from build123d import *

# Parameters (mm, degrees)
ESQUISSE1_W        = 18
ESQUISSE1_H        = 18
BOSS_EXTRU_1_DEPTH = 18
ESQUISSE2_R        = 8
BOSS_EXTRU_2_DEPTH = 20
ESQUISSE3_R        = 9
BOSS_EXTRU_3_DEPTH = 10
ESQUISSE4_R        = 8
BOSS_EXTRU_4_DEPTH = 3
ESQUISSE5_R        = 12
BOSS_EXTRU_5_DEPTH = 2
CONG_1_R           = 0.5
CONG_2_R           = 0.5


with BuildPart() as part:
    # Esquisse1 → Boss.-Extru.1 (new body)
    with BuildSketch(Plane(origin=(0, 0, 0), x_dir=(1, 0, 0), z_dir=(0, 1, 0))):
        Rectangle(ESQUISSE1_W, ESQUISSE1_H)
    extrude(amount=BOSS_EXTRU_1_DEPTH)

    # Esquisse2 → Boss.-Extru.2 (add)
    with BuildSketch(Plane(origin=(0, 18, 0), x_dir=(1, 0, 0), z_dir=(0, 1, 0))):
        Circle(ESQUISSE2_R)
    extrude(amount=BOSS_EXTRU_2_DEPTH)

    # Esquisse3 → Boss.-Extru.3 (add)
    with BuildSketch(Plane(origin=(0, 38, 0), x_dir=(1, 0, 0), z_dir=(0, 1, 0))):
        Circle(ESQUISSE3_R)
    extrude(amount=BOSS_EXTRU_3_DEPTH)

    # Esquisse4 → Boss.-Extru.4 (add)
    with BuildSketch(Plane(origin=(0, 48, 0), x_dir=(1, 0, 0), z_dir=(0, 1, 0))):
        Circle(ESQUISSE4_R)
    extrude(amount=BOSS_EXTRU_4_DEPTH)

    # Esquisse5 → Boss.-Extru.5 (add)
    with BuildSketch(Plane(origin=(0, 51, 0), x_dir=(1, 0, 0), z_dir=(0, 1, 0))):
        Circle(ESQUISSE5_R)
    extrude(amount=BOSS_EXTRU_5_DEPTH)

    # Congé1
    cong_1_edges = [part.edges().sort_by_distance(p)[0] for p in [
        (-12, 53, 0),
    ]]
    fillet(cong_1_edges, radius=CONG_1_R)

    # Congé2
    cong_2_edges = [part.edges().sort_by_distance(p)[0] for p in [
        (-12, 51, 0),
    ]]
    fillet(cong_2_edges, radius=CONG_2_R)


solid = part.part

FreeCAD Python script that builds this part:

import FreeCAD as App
import Part
import Sketcher
from FreeCAD import Vector
Q = App.Units.Quantity


def edges_at(feature, points):
    """Names of the edges that pass closest to the given points."""
    edges = feature.Shape.Edges
    near = lambda p: min(range(len(edges)), key=lambda i: edges[i].distToShape(Part.Vertex(*p))[0])
    return sorted({f"Edge{near(p) + 1}" for p in points})

doc = App.newDocument("Part")
body = doc.addObject("PartDesign::Body", "Body")

sketch1 = body.newObject("Sketcher::SketchObject", "Sketch")
sketch1.AttachmentSupport = (doc.getObject("XZ_Plane"), [""])
sketch1.MapMode = "FlatFace"
sketch1.addGeometry([
    Part.LineSegment(Vector(-9, -9, 0), Vector(-9, 9, 0)),
    Part.LineSegment(Vector(-9, 9, 0), Vector(9, 9, 0)),
    Part.LineSegment(Vector(9, 9, 0), Vector(9, -9, 0)),
    Part.LineSegment(Vector(9, -9, 0), Vector(-9, -9, 0)),
], False)
sketch1.addConstraint([
    Sketcher.Constraint("Coincident", 0, 2, 1, 1),
    Sketcher.Constraint("Coincident", 1, 2, 2, 1),
    Sketcher.Constraint("Coincident", 2, 2, 3, 1),
    Sketcher.Constraint("Coincident", 3, 2, 0, 1),
    Sketcher.Constraint("Vertical", 0),
    Sketcher.Constraint("Horizontal", 1),
    Sketcher.Constraint("Vertical", 2),
    Sketcher.Constraint("Horizontal", 3),
    Sketcher.Constraint("Symmetric", 0, 2, 2, 2, -1, 1),
    Sketcher.Constraint("Equal", 3, 0),
    Sketcher.Constraint("DistanceX", 1, 1, 1, 2, Q("18 mm")),
])
pad1 = body.newObject("PartDesign::Pad", "Pad")
pad1.Profile = sketch1
pad1.Length = 18
pad1.Reversed = True

sketch2 = body.newObject("Sketcher::SketchObject", "Sketch001")
sketch2.AttachmentSupport = (doc.getObject("XZ_Plane"), [""])
sketch2.MapMode = "FlatFace"
sketch2.AttachmentOffset = App.Placement(Vector(0, 0, -18), App.Rotation())
sketch2.addGeometry(Part.Circle(Vector(0, 0, 0), Vector(0, 0, 1), 8), False)
sketch2.addConstraint([
    Sketcher.Constraint("Coincident", 0, 3, -1, 1),
    Sketcher.Constraint("Diameter", 0, Q("16 mm")),
])
pad2 = body.newObject("PartDesign::Pad", "Pad001")
pad2.Profile = sketch2
pad2.Length = 20
pad2.Reversed = True

sketch3 = body.newObject("Sketcher::SketchObject", "Sketch002")
sketch3.AttachmentSupport = (doc.getObject("XZ_Plane"), [""])
sketch3.MapMode = "FlatFace"
sketch3.AttachmentOffset = App.Placement(Vector(0, 0, -38), App.Rotation())
sketch3.addGeometry(Part.Circle(Vector(0, 0, 0), Vector(0, 0, 1), 9), False)
sketch3.addConstraint([
    Sketcher.Constraint("Coincident", 0, 3, -1, 1),
    Sketcher.Constraint("Diameter", 0, Q("18 mm")),
])
pad3 = body.newObject("PartDesign::Pad", "Pad002")
pad3.Profile = sketch3
pad3.Length = 10
pad3.Reversed = True

sketch4 = body.newObject("Sketcher::SketchObject", "Sketch003")
sketch4.AttachmentSupport = (doc.getObject("XZ_Plane"), [""])
sketch4.MapMode = "FlatFace"
sketch4.AttachmentOffset = App.Placement(Vector(0, 0, -48), App.Rotation())
sketch4.addGeometry(Part.Circle(Vector(0, 0, 0), Vector(0, 0, 1), 8), False)
sketch4.addConstraint([
    Sketcher.Constraint("Coincident", 0, 3, -1, 1),
    Sketcher.Constraint("Diameter", 0, Q("16 mm")),
])
pad4 = body.newObject("PartDesign::Pad", "Pad003")
pad4.Profile = sketch4
pad4.Length = 3
pad4.Reversed = True

sketch5 = body.newObject("Sketcher::SketchObject", "Sketch004")
sketch5.AttachmentSupport = (doc.getObject("XZ_Plane"), [""])
sketch5.MapMode = "FlatFace"
sketch5.AttachmentOffset = App.Placement(Vector(0, 0, -51), App.Rotation())
sketch5.addGeometry(Part.Circle(Vector(0, 0, 0), Vector(0, 0, 1), 12), False)
sketch5.addConstraint([
    Sketcher.Constraint("Coincident", 0, 3, -1, 1),
    Sketcher.Constraint("Diameter", 0, Q("24 mm")),
])
pad5 = body.newObject("PartDesign::Pad", "Pad004")
pad5.Profile = sketch5
pad5.Length = 2
pad5.Reversed = True
doc.recompute()

fillet = body.newObject("PartDesign::Fillet", "Fillet")
fillet.Base = (pad5, edges_at(pad5, [(-12, 53, 0)]))
fillet.Radius = 0.5
doc.recompute()

fillet2 = body.newObject("PartDesign::Fillet", "Fillet001")
fillet2.Base = (fillet, edges_at(fillet, [(-12, 51, 0)]))
fillet2.Radius = 0.5

doc.recompute()
